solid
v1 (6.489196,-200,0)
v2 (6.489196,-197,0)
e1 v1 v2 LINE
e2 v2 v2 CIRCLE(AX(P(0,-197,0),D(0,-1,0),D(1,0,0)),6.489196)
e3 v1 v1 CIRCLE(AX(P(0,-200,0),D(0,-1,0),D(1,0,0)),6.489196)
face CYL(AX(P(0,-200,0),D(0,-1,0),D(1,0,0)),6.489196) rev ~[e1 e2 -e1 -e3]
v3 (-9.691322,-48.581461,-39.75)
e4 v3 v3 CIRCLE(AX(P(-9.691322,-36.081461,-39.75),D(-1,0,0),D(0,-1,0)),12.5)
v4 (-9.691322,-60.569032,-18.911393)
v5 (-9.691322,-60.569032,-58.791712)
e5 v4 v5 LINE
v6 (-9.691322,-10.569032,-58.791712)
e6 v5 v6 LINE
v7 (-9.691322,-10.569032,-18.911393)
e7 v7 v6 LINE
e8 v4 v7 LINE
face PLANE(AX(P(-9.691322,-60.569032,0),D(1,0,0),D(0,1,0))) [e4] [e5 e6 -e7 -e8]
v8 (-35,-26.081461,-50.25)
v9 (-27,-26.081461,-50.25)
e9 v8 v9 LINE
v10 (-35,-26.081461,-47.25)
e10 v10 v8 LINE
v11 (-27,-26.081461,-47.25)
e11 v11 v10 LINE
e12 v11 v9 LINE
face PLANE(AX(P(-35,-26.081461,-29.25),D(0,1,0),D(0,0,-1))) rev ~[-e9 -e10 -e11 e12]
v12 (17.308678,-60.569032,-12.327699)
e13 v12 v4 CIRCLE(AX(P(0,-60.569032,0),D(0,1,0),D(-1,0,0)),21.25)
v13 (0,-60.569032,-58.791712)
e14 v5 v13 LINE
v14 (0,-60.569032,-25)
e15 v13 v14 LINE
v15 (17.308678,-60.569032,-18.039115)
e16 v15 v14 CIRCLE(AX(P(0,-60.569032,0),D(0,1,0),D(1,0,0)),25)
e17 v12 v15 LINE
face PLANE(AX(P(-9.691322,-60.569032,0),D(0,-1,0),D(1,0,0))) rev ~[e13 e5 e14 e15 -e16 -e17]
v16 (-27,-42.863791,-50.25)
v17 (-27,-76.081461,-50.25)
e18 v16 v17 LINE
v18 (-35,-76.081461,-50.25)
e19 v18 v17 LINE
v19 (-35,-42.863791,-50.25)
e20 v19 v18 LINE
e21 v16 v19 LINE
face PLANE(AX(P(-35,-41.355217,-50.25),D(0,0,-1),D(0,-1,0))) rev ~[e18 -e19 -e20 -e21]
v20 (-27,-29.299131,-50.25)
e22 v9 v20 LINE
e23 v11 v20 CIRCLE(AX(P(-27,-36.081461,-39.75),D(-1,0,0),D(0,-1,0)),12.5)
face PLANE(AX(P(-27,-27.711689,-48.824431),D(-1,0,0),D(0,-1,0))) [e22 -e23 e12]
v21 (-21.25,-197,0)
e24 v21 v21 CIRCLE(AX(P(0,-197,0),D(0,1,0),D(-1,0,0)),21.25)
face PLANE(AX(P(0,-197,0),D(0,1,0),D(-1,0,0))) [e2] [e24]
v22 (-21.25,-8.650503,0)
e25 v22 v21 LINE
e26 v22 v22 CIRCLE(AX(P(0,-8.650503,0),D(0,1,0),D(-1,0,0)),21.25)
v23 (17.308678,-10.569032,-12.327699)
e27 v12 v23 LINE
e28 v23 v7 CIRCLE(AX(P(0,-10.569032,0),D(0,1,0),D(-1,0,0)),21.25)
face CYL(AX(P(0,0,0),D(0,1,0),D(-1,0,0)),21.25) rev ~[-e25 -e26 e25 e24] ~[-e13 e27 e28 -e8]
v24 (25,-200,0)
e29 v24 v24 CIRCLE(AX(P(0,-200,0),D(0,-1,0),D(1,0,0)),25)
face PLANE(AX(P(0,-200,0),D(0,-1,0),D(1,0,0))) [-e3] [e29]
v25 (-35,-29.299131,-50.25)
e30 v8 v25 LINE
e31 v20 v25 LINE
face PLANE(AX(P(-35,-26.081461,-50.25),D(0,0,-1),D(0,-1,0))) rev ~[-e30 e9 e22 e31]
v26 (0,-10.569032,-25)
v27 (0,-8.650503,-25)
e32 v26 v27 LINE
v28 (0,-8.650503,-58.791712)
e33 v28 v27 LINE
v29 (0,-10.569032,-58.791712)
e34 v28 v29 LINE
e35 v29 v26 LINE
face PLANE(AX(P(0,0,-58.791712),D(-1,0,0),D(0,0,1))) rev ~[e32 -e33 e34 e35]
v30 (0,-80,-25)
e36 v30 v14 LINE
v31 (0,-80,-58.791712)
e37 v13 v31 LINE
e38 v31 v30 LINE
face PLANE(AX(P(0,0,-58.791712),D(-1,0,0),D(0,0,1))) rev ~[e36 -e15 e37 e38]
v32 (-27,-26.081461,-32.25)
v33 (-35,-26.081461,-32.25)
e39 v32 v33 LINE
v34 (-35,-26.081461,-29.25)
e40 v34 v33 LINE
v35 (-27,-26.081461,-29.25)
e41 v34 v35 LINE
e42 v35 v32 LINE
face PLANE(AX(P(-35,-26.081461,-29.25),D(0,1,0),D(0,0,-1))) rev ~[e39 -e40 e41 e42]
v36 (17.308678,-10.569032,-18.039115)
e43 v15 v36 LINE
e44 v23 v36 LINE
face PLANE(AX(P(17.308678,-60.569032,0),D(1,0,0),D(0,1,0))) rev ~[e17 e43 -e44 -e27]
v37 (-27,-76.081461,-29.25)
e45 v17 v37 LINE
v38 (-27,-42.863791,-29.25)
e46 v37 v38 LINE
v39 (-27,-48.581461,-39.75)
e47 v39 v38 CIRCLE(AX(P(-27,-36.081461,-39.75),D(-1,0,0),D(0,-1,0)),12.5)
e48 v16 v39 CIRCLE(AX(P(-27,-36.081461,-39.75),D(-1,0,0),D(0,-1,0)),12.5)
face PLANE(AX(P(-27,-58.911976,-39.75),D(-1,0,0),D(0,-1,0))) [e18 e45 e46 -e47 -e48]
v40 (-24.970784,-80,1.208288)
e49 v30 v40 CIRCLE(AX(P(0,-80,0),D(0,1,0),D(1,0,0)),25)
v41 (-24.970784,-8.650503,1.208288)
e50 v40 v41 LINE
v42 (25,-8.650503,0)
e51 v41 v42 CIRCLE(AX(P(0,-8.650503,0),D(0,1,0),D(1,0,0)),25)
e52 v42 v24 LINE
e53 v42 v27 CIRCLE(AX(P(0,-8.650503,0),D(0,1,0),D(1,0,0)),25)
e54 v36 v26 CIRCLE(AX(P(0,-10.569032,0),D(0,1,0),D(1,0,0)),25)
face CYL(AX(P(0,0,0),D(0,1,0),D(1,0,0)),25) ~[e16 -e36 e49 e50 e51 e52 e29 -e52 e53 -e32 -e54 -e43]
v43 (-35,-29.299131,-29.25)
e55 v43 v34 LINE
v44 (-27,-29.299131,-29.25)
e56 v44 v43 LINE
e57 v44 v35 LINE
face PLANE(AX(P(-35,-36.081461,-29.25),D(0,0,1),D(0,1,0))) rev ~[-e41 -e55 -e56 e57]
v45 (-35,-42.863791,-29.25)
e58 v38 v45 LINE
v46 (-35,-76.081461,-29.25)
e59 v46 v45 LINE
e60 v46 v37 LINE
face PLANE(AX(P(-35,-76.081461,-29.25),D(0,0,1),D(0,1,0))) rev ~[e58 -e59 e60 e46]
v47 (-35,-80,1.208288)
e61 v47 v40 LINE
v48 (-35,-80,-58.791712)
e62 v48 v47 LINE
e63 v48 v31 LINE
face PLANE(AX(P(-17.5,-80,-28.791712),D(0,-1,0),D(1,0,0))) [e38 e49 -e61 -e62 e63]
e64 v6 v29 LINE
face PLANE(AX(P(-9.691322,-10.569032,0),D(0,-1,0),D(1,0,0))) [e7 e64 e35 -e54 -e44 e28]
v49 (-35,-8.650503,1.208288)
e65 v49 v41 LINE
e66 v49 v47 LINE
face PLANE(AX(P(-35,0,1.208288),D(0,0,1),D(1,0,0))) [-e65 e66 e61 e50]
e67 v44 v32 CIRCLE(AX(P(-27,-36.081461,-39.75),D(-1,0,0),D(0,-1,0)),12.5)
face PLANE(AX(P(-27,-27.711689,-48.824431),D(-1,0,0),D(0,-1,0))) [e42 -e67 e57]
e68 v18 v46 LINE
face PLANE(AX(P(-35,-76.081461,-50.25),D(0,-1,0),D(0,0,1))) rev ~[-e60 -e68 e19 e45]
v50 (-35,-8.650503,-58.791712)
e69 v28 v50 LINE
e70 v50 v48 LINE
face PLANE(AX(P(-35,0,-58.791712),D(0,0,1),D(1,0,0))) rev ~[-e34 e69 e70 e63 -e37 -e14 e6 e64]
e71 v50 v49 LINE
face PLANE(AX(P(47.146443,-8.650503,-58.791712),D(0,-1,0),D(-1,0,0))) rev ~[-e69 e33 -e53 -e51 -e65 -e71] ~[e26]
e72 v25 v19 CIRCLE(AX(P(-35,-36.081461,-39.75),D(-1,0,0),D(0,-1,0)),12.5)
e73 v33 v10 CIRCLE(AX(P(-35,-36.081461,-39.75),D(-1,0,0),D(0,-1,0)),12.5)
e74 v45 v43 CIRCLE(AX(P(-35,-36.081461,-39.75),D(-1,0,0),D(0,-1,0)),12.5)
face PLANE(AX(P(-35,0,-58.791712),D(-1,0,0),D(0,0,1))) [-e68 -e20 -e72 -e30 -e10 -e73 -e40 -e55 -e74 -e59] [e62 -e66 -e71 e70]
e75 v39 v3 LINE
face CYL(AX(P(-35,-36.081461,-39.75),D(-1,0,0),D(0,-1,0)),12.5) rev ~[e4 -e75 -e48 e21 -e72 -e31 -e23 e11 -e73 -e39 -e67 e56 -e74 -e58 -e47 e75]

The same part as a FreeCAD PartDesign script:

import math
import FreeCAD as App
import Part
import Sketcher

V = App.Vector
Q = App.Units.Quantity


def add_polygon(sketch, points):
    """Adds a closed chain of lines whose ends are joined by coincident constraints."""
    first, n = sketch.GeometryCount, len(points)
    for a, b in zip(points, points[1:] + points[:1]):
        sketch.addGeometry(Part.LineSegment(App.Vector(*a, 0), App.Vector(*b, 0)), False)
    for i in range(n):
        sketch.addConstraint(Sketcher.Constraint("Coincident", first + i, 2, first + (i + 1) % n, 1))

doc = App.newDocument("Part")
body = doc.addObject("PartDesign::Body", "Body")

sketch1 = body.newObject("Sketcher::SketchObject", "Sketch")
sketch1.AttachmentSupport = (doc.getObject("XZ_Plane"), [""])
sketch1.MapMode = "FlatFace"
sketch1.addGeometry(Part.Circle(V(0, 0, 0), V(0, 0, 1), 25), False)
sketch1.addConstraint([
    Sketcher.Constraint("Coincident", 0, 3, -1, 1),
    Sketcher.Constraint("Diameter", 0, Q("50 mm")),
])
pad1 = body.newObject("PartDesign::Pad", "Pad")
pad1.Profile = sketch1
pad1.Length = 200

sketch2 = body.newObject("Sketcher::SketchObject", "Sketch001")
sketch2.AttachmentSupport = (doc.getObject("XZ_Plane"), [""])
sketch2.MapMode = "FlatFace"
add_polygon(sketch2, [(-35, 1), (-35, -59), (0, -59), (0, 1)])
sketch2.addConstraint([
    Sketcher.Constraint("Vertical", 0),
    Sketcher.Constraint("Horizontal", 1),
    Sketcher.Constraint("Vertical", 2),
    Sketcher.Constraint("Horizontal", 3),
    Sketcher.Constraint("PointOnObject", 1, 2, -2),
    Sketcher.Constraint("DistanceX", 1, 1, 1, 2, Q("35 mm")),
    Sketcher.Constraint("DistanceY", 0, 2, 0, 1, Q("60 mm")),
    Sketcher.Constraint("DistanceY", 0, 2, -1, 1, Q("58.791712 mm")),
])
pad2 = body.newObject("PartDesign::Pad", "Pad001")
pad2.Profile = sketch2
pad2.Length = 80

sketch3 = body.newObject("Sketcher::SketchObject", "Sketch002")
sketch3.AttachmentSupport = (doc.getObject("XZ_Plane"), [""])
sketch3.MapMode = "FlatFace"
sketch3.addGeometry(Part.Circle(V(0, 0, 0), V(0, 0, 1), 21), False)
sketch3.addConstraint([
    Sketcher.Constraint("Coincident", 0, 3, -1, 1),
    Sketcher.Constraint("Diameter", 0, Q("42.5 mm")),
])
pocket1 = body.newObject("PartDesign::Pocket", "Pocket")
pocket1.Profile = sketch3
pocket1.Length = 197
pocket1.Reversed = True

sketch4 = body.newObject("Sketcher::SketchObject", "Sketch003")
sketch4.AttachmentSupport = (doc.getObject("XY_Plane"), [""])
sketch4.MapMode = "FlatFace"
add_polygon(sketch4, [(-10, -11), (-10, -61), (17, -61), (17, -11)])
sketch4.addConstraint([
    Sketcher.Constraint("Vertical", 0),
    Sketcher.Constraint("Horizontal", 1),
    Sketcher.Constraint("Vertical", 2),
    Sketcher.Constraint("Horizontal", 3),
    Sketcher.Constraint("DistanceX", 1, 1, 1, 2, Q("27 mm")),
    Sketcher.Constraint("DistanceY", 0, 2, 0, 1, Q("50 mm")),
    Sketcher.Constraint("DistanceX", 0, 2, -1, 1, Q("9.691322 mm")),
    Sketcher.Constraint("DistanceY", 0, 2, -1, 1, Q("60.569032 mm")),
])
pocket2 = body.newObject("PartDesign::Pocket", "Pocket001")
pocket2.Profile = sketch4
pocket2.Length = 60

sketch5 = body.newObject("Sketcher::SketchObject", "Sketch004")
sketch5.AttachmentSupport = (doc.getObject("YZ_Plane"), [""])
sketch5.MapMode = "FlatFace"
sketch5.AttachmentOffset = App.Placement(V(0, 0, -35), App.Rotation())
sketch5.addGeometry(Part.ArcOfCircle(Part.Circle(V(-36, -40, 0), V(0, 0, 1), 12), math.radians(117), math.radians(180)), False)
sketch5.addGeometry(Part.ArcOfCircle(Part.Circle(V(-36, -40, 0), V(0, 0, 1), 12), math.radians(180), math.radians(243)), False)
sketch5.addGeometry(Part.LineSegment(V(-41, -50, 0), V(-76, -50, 0)), False)
sketch5.addGeometry(Part.LineSegment(V(-76, -50, 0), V(-76, -29, 0)), False)
sketch5.addGeometry(Part.LineSegment(V(-76, -29, 0), V(-41, -29, 0)), False)
add_polygon(sketch5, [(-26, -50), (-36, -50), (-36, -29), (-26, -29)])
sketch5.addConstraint([
    Sketcher.Constraint("Tangent", 0, 2, 1, 1),
    Sketcher.Constraint("Coincident", 1, 2, 2, 1),
    Sketcher.Constraint("Coincident", 2, 2, 3, 1),
    Sketcher.Constraint("Coincident", 3, 2, 4, 1),
    Sketcher.Constraint("Coincident", 4, 2, 0, 1),
    Sketcher.Constraint("Horizontal", 2),
    Sketcher.Constraint("Vertical", 3),
    Sketcher.Constraint("Horizontal", 4),
    Sketcher.Constraint("Horizontal", 5),
    Sketcher.Constraint("Vertical", 6),
    Sketcher.Constraint("Horizontal", 7),
    Sketcher.Constraint("Vertical", 8),
    Sketcher.Constraint("Equal", 0, 1),
    Sketcher.Constraint("Horizontal", 1, 3, 0, 2),
    Sketcher.Constraint("Horizontal", 2, 2, 5, 2),
    Sketcher.Constraint("Horizontal", 4, 2, 6, 2),
    Sketcher.Constraint("Vertical", 1, 2, 4, 2),
    Sketcher.Constraint("Vertical", 1, 3, 5, 2),
    Sketcher.Constraint("DistanceX", 5, 2, 5, 1, Q("10 mm")),
    Sketcher.Constraint("DistanceY", 3, 1, 3, 2, Q("21 mm")),
    Sketcher.Constraint("Radius", 0, Q("11.75 mm")),
    Sketcher.Constraint("DistanceX", 2, 2, 0, 3, Q("40 mm")),
    Sketcher.Constraint("DistanceY", 0, 3, -1, 1, Q("39.75 mm")),
    Sketcher.Constraint("DistanceX", 0, 3, -1, 1, Q("36.081461 mm")),
])
pocket3 = body.newObject("PartDesign::Pocket", "Pocket002")
pocket3.Profile = sketch5
pocket3.Length = 8
pocket3.Reversed = True

sketch6 = body.newObject("Sketcher::SketchObject", "Sketch005")
sketch6.AttachmentSupport = (doc.getObject("XY_Plane"), [""])
sketch6.MapMode = "FlatFace"
sketch6.AttachmentOffset = App.Placement(V(0, 0, -58.791712), App.Rotation())
add_polygon(sketch6, [(47, 0), (47, -9), (-35, -9), (-35, 0)])
sketch6.addConstraint([
    Sketcher.Constraint("Vertical", 0),
    Sketcher.Constraint("Horizontal", 1),
    Sketcher.Constraint("Vertical", 2),
    Sketcher.Constraint("Horizontal", 3),
    Sketcher.Constraint("PointOnObject", 2, 2, -1),
    Sketcher.Constraint("DistanceX", 1, 2, -1, 1, Q("35 mm")),
    Sketcher.Constraint("DistanceX", 1, 2, 1, 1, Q("82.146443 mm")),
    Sketcher.Constraint("DistanceY", 0, 2, 0, 1, Q("8.650503 mm")),
])
pocket4 = body.newObject("PartDesign::Pocket", "Pocket003")
pocket4.Profile = sketch6
pocket4.Type = "ThroughAll"
pocket4.Reversed = True

sketch7 = body.newObject("Sketcher::SketchObject", "Sketch006")
sketch7.AttachmentSupport = (doc.getObject("YZ_Plane"), [""])
sketch7.MapMode = "FlatFace"
sketch7.AttachmentOffset = App.Placement(V(0, 0, -35), App.Rotation())
sketch7.addGeometry(Part.Circle(V(-36, -40, 0), V(0, 0, 1), 12), False)
sketch7.addConstraint([
    Sketcher.Constraint("Diameter", 0, Q("25 mm")),
    Sketcher.Constraint("DistanceY", 0, 3, -1, 1, Q("39.75 mm")),
    Sketcher.Constraint("DistanceX", 0, 3, -1, 1, Q("36.081461 mm")),
])
pocket5 = body.newObject("PartDesign::Pocket", "Pocket004")
pocket5.Profile = sketch7
pocket5.Length = 50
pocket5.Reversed = True

sketch8 = body.newObject("Sketcher::SketchObject", "Sketch007")
sketch8.AttachmentSupport = (doc.getObject("XZ_Plane"), [""])
sketch8.MapMode = "FlatFace"
sketch8.AttachmentOffset = App.Placement(V(0, 0, 200), App.Rotation())
sketch8.addGeometry(Part.Circle(V(0, 0, 0), V(0, 0, 1), 6), False)
sketch8.addConstraint([
    Sketcher.Constraint("Coincident", 0, 3, -1, 1),
    Sketcher.Constraint("Diameter", 0, Q("12.978392 mm")),
])
pocket6 = body.newObject("PartDesign::Pocket", "Pocket005")
pocket6.Profile = sketch8
pocket6.Length = 25

doc.recompute()
